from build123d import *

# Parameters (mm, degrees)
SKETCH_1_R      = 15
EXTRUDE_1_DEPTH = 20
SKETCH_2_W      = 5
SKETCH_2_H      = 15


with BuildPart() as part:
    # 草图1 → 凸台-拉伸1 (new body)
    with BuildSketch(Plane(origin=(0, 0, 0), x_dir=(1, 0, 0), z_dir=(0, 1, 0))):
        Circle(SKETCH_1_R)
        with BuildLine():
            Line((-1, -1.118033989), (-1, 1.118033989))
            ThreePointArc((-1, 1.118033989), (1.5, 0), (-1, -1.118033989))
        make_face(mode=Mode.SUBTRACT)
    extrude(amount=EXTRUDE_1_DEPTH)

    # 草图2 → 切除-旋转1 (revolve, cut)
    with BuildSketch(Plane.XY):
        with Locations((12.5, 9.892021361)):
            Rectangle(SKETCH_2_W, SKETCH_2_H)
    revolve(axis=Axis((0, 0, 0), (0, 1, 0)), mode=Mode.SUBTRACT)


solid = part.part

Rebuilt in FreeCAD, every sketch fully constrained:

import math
import FreeCAD as App
import Part
import Sketcher

doc = App.newDocument("Part")
params = doc.addObject("Spreadsheet::Sheet", "Params")
for row, (alias, value) in enumerate([
    ("sketch1_diameter", "30 mm"),
    ("sketch1_radius", "1.5 mm"),
    ("pad1_length", "20 mm"),
    ("sketch2_width", "5 mm"),
    ("sketch2_height", "15 mm"),
    ("groove_angle", "360 deg"),
], start=1):
    params.set(f"A{row}", alias)
    params.set(f"B{row}", "=" + value)
    params.setAlias(f"B{row}", alias)

body = doc.addObject("PartDesign::Body", "Body")

# Sketch on XZ plane
sketch1 = body.newObject("Sketcher::SketchObject", "Sketch")
sketch1.AttachmentSupport = (doc.getObject("XZ_Plane"), [""])
sketch1.MapMode = "FlatFace"
sketch1.addGeometry([
    Part.Circle(App.Vector(0, 0, 0), App.Vector(0, 0, 1), 15),
    Part.ArcOfCircle(Part.Circle(App.Vector(0, 0, 0), App.Vector(0, 0, 1), 1.5), math.radians(-132), math.radians(132)),
    Part.LineSegment(App.Vector(-1, 1.1, 0), App.Vector(-1, -1.1, 0)),
], False)
sketch1.addConstraint([
    Sketcher.Constraint("Coincident", 1, 1, 2, 2),
    Sketcher.Constraint("Coincident", 2, 1, 1, 2),
    Sketcher.Constraint("Vertical", 2),
    Sketcher.Constraint("Coincident", 0, 3, -1, 1),
    Sketcher.Constraint("Coincident", 1, 3, -1, 1),
    Sketcher.Constraint("Diameter", 0, 30.0),
    Sketcher.Constraint("Radius", 1, 1.5),
    Sketcher.Constraint("DistanceX", 1, 1, -1, 1, 1.0),
])
sketch1.setExpression("Constraints[5]", "Params.sketch1_diameter")
sketch1.setExpression("Constraints[6]", "Params.sketch1_radius")
pad1 = body.newObject("PartDesign::Pad", "Pad")
pad1.Profile = sketch1
pad1.setExpression("Length", "Params.pad1_length")
pad1.Reversed = True

# Sketch on XY plane
sketch2 = body.newObject("Sketcher::SketchObject", "Sketch001")
sketch2.AttachmentSupport = (doc.getObject("XY_Plane"), [""])
sketch2.MapMode = "FlatFace"
sketch2.addGeometry([
    Part.LineSegment(App.Vector(10, 17, 0), App.Vector(10, 2, 0)),
    Part.LineSegment(App.Vector(10, 2, 0), App.Vector(15, 2, 0)),
    Part.LineSegment(App.Vector(15, 2, 0), App.Vector(15, 17, 0)),
    Part.LineSegment(App.Vector(15, 17, 0), App.Vector(10, 17, 0)),
], False)
sketch2.addConstraint([
    Sketcher.Constraint("Coincident", 0, 2, 1, 1),
    Sketcher.Constraint("Coincident", 1, 2, 2, 1),
    Sketcher.Constraint("Coincident", 2, 2, 3, 1),
    Sketcher.Constraint("Coincident", 3, 2, 0, 1),
    Sketcher.Constraint("Vertical", 0),
    Sketcher.Constraint("Horizontal", 1),
    Sketcher.Constraint("Vertical", 2),
    Sketcher.Constraint("Horizontal", 3),
    Sketcher.Constraint("DistanceX", 1, 1, 1, 2, 5.0),
    Sketcher.Constraint("DistanceY", 0, 2, 0, 1, 15.0),
    Sketcher.Constraint("DistanceX", -1, 1, 0, 2, 10.0),
    Sketcher.Constraint("DistanceY", -1, 1, 0, 2, 2.392021),
])
sketch2.setExpression("Constraints[8]", "Params.sketch2_width")
sketch2.setExpression("Constraints[9]", "Params.sketch2_height")
groove = body.newObject("PartDesign::Groove", "Groove")
groove.Profile = sketch2
groove.ReferenceAxis = (sketch2, ["V_Axis"])
groove.setExpression("Angle", "Params.groove_angle")

doc.recompute()
